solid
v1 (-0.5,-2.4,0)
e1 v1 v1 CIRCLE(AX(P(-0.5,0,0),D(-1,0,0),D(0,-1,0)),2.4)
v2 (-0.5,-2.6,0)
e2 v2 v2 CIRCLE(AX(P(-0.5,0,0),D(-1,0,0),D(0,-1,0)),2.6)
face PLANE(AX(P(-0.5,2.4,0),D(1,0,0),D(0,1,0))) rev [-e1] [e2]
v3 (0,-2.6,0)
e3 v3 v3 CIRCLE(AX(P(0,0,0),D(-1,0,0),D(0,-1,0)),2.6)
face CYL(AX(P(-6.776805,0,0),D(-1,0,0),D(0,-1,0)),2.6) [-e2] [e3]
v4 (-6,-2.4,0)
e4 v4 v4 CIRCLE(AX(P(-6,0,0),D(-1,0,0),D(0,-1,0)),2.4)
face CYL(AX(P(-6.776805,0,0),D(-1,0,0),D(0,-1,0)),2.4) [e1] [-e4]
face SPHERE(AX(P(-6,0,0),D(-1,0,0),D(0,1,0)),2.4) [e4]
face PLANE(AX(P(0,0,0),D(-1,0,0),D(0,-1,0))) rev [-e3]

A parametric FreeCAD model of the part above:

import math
import FreeCAD as App
import Part
import Sketcher

V = App.Vector

doc = App.newDocument("Part")
body = doc.addObject("PartDesign::Body", "Body")

sketch1 = body.newObject("Sketcher::SketchObject", "Sketch")
sketch1.AttachmentSupport = (doc.getObject("XY_Plane"), [""])
sketch1.MapMode = "FlatFace"
sketch1.addGeometry([
    Part.LineSegment(V(-8.4, 0, 0), V(0, 0, 0)),
    Part.LineSegment(V(0, 0, 0), V(0, 2.6, 0)),
    Part.LineSegment(V(0, 2.6, 0), V(-0.5, 2.6, 0)),
    Part.LineSegment(V(-0.5, 2.6, 0), V(-0.5, 2.4, 0)),
    Part.LineSegment(V(-0.5, 2.4, 0), V(-6, 2.4, 0)),
    Part.ArcOfCircle(Part.Circle(V(-6, 0, 0), V(0, 0, 1), 2.4), math.radians(90), math.radians(180)),
], False)
sketch1.addConstraint([
    Sketcher.Constraint("Coincident", 0, 2, 1, 1),
    Sketcher.Constraint("Coincident", 1, 2, 2, 1),
    Sketcher.Constraint("Coincident", 2, 2, 3, 1),
    Sketcher.Constraint("Coincident", 3, 2, 4, 1),
    Sketcher.Constraint("Tangent", 4, 2, 5, 1),
    Sketcher.Constraint("Coincident", 5, 2, 0, 1),
    Sketcher.Constraint("Horizontal", 0),
    Sketcher.Constraint("Vertical", 1),
    Sketcher.Constraint("Horizontal", 2),
    Sketcher.Constraint("Vertical", 3),
    Sketcher.Constraint("Horizontal", 4),
    Sketcher.Constraint("Coincident", 0, 2, -1, 1),
    Sketcher.Constraint("PointOnObject", 5, 3, -1),
    Sketcher.Constraint("Radius", 5, 2.4),
    Sketcher.Constraint("DistanceX", 0, 1, 0, 2, 8.4),
    Sketcher.Constraint("DistanceX", 2, 2, 2, 1, 0.5),
    Sketcher.Constraint("DistanceY", 1, 1, 1, 2, 2.6),
])
revolution = body.newObject("PartDesign::Revolution", "Revolution")
revolution.Profile = sketch1
revolution.ReferenceAxis = (sketch1, ["H_Axis"])
revolution.Angle = 360

doc.recompute()
